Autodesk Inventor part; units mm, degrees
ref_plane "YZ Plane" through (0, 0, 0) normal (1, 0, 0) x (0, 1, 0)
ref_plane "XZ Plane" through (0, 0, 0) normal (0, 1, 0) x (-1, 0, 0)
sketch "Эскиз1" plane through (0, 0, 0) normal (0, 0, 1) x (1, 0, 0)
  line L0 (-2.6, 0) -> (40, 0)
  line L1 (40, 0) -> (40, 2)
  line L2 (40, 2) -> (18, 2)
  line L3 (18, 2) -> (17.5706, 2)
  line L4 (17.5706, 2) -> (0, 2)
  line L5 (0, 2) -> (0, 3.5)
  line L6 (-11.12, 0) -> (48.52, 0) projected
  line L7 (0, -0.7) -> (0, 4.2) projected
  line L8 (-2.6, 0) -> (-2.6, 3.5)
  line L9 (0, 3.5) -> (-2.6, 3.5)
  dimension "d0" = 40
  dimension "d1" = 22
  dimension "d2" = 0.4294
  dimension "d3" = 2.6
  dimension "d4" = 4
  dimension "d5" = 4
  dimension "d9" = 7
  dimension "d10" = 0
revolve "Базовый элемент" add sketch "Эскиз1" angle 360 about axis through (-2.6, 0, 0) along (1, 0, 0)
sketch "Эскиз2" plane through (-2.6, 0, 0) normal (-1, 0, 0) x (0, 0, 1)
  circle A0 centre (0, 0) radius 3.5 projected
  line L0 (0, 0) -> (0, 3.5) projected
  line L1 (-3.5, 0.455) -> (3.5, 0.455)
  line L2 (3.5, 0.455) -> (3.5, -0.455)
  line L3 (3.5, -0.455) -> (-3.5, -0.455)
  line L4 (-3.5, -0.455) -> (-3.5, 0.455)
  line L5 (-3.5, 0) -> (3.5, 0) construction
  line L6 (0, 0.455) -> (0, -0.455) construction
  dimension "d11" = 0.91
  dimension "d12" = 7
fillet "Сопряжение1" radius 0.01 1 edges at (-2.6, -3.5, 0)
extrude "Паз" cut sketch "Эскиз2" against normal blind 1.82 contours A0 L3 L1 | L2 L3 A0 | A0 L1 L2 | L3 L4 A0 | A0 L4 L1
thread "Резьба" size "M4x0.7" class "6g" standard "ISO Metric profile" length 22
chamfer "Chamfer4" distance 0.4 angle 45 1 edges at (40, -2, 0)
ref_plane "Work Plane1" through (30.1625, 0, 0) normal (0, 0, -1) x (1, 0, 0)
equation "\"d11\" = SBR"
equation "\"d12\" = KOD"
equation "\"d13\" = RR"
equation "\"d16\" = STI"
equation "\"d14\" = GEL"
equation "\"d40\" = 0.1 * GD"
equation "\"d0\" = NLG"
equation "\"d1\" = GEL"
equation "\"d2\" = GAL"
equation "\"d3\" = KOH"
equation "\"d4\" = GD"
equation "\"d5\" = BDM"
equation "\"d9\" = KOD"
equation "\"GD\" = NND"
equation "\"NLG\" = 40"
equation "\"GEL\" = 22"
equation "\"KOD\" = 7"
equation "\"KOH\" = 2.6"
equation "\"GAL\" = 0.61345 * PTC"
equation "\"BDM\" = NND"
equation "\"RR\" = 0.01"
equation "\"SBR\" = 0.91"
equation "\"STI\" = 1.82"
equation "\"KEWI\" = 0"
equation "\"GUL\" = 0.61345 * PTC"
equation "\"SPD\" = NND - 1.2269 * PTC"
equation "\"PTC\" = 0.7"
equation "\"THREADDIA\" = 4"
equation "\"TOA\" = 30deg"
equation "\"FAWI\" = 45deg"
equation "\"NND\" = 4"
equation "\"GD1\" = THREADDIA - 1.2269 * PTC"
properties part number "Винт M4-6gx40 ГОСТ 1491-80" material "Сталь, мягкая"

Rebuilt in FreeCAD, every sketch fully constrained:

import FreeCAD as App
import Part
import Sketcher

V = App.Vector
Q = App.Units.Quantity


def edges_at(feature, points):
    """Names of the edges that pass closest to the given points."""
    edges = feature.Shape.Edges
    near = lambda p: min(range(len(edges)), key=lambda i: edges[i].distToShape(Part.Vertex(*p))[0])
    return sorted({f"Edge{near(p) + 1}" for p in points})


def add_polygon(sketch, points):
    """Adds a closed chain of lines whose ends are joined by coincident constraints."""
    first, n = sketch.GeometryCount, len(points)
    for a, b in zip(points, points[1:] + points[:1]):
        sketch.addGeometry(Part.LineSegment(App.Vector(*a, 0), App.Vector(*b, 0)), False)
    for i in range(n):
        sketch.addConstraint(Sketcher.Constraint("Coincident", first + i, 2, first + (i + 1) % n, 1))

doc = App.newDocument("Part")
params = doc.addObject("Spreadsheet::Sheet", "Params")
for row, (alias, value) in enumerate([
    ("sketch1_width", "40 mm"),
    ("sketch1_width2", "2.6 mm"),
    ("sketch1_height", "2 mm"),
    ("sketch1_height2", "3.5 mm"),
    ("revolution_angle", "360 deg"),
    ("fillet_radius", "0.01 mm"),
    ("sketch2_height", "7 mm"),
    ("sketch2_width", "0.91 mm"),
    ("pocket1_length", "1.82 mm"),
    ("chamfer_size", "0.4 mm"),
], start=1):
    params.set(f"A{row}", alias)
    params.set(f"B{row}", "=" + value)
    params.setAlias(f"B{row}", alias)

body = doc.addObject("PartDesign::Body", "Body")

# Sketch on XY plane
sketch1 = body.newObject("Sketcher::SketchObject", "Sketch")
sketch1.AttachmentSupport = (doc.getObject("XY_Plane"), [""])
sketch1.MapMode = "FlatFace"
add_polygon(sketch1, [(-2.6, 3.5), (-2.6, 0), (40, 0), (40, 2), (0, 2), (0, 3.5)])  # lines 0-5
sketch1.addConstraint(Sketcher.Constraint("Vertical", 0))
sketch1.addConstraint(Sketcher.Constraint("Horizontal", 1))
sketch1.addConstraint(Sketcher.Constraint("Vertical", 2))
sketch1.addConstraint(Sketcher.Constraint("Horizontal", 3))
sketch1.addConstraint(Sketcher.Constraint("Vertical", 4))
sketch1.addConstraint(Sketcher.Constraint("Horizontal", 5))
sketch1.addConstraint(Sketcher.Constraint("PointOnObject", 0, 2, -1))
sketch1.addConstraint(Sketcher.Constraint("PointOnObject", 3, 2, -2))
sketch1.addConstraint(Sketcher.Constraint("DistanceX", 3, 2, 3, 1, Q("40 mm")))
sketch1.addConstraint(Sketcher.Constraint("DistanceX", 5, 2, 5, 1, Q("2.6 mm")))
sketch1.addConstraint(Sketcher.Constraint("DistanceY", 2, 1, 2, 2, Q("2 mm")))
sketch1.addConstraint(Sketcher.Constraint("DistanceY", 0, 2, 0, 1, Q("3.5 mm")))
sketch1.setExpression("Constraints[14]", "Params.sketch1_width")
sketch1.setExpression("Constraints[15]", "Params.sketch1_width2")
sketch1.setExpression("Constraints[16]", "Params.sketch1_height")
sketch1.setExpression("Constraints[17]", "Params.sketch1_height2")
revolution = body.newObject("PartDesign::Revolution", "Revolution")
revolution.Profile = sketch1
revolution.ReferenceAxis = (sketch1, ["H_Axis"])
revolution.setExpression("Angle", "Params.revolution_angle")
doc.recompute()

fillet = body.newObject("PartDesign::Fillet", "Fillet")
fillet.Base = (revolution, edges_at(revolution, [(-2.6, -3.5, 0)]))
fillet.setExpression("Radius", "Params.fillet_radius")

# Sketch on YZ plane
sketch2 = body.newObject("Sketcher::SketchObject", "Sketch001")
sketch2.AttachmentSupport = (doc.getObject("YZ_Plane"), [""])
sketch2.MapMode = "FlatFace"
sketch2.AttachmentOffset = App.Placement(V(0, 0, -2.6), App.Rotation())
add_polygon(sketch2, [(-0.5, 3.5), (0.5, 3.5), (0.5, -3.5), (-0.5, -3.5)])  # lines 0-3
sketch2.addConstraint(Sketcher.Constraint("Horizontal", 0))
sketch2.addConstraint(Sketcher.Constraint("Vertical", 1))
sketch2.addConstraint(Sketcher.Constraint("Horizontal", 2))
sketch2.addConstraint(Sketcher.Constraint("Vertical", 3))
sketch2.addConstraint(Sketcher.Constraint("Symmetric", 0, 2, 2, 2, -1, 1))
sketch2.addConstraint(Sketcher.Constraint("DistanceY", 1, 2, 1, 1, Q("7 mm")))
sketch2.addConstraint(Sketcher.Constraint("DistanceX", 0, 1, 0, 2, Q("0.91 mm")))
sketch2.setExpression("Constraints[9]", "Params.sketch2_height")
sketch2.setExpression("Constraints[10]", "Params.sketch2_width")
pocket1 = body.newObject("PartDesign::Pocket", "Pocket")
pocket1.Profile = sketch2
pocket1.setExpression("Length", "Params.pocket1_length")
pocket1.Reversed = True
doc.recompute()

chamfer = body.newObject("PartDesign::Chamfer", "Chamfer")
chamfer.Base = (pocket1, edges_at(pocket1, [(40, -2, 0)]))
chamfer.setExpression("Size", "Params.chamfer_size")

doc.recompute()
